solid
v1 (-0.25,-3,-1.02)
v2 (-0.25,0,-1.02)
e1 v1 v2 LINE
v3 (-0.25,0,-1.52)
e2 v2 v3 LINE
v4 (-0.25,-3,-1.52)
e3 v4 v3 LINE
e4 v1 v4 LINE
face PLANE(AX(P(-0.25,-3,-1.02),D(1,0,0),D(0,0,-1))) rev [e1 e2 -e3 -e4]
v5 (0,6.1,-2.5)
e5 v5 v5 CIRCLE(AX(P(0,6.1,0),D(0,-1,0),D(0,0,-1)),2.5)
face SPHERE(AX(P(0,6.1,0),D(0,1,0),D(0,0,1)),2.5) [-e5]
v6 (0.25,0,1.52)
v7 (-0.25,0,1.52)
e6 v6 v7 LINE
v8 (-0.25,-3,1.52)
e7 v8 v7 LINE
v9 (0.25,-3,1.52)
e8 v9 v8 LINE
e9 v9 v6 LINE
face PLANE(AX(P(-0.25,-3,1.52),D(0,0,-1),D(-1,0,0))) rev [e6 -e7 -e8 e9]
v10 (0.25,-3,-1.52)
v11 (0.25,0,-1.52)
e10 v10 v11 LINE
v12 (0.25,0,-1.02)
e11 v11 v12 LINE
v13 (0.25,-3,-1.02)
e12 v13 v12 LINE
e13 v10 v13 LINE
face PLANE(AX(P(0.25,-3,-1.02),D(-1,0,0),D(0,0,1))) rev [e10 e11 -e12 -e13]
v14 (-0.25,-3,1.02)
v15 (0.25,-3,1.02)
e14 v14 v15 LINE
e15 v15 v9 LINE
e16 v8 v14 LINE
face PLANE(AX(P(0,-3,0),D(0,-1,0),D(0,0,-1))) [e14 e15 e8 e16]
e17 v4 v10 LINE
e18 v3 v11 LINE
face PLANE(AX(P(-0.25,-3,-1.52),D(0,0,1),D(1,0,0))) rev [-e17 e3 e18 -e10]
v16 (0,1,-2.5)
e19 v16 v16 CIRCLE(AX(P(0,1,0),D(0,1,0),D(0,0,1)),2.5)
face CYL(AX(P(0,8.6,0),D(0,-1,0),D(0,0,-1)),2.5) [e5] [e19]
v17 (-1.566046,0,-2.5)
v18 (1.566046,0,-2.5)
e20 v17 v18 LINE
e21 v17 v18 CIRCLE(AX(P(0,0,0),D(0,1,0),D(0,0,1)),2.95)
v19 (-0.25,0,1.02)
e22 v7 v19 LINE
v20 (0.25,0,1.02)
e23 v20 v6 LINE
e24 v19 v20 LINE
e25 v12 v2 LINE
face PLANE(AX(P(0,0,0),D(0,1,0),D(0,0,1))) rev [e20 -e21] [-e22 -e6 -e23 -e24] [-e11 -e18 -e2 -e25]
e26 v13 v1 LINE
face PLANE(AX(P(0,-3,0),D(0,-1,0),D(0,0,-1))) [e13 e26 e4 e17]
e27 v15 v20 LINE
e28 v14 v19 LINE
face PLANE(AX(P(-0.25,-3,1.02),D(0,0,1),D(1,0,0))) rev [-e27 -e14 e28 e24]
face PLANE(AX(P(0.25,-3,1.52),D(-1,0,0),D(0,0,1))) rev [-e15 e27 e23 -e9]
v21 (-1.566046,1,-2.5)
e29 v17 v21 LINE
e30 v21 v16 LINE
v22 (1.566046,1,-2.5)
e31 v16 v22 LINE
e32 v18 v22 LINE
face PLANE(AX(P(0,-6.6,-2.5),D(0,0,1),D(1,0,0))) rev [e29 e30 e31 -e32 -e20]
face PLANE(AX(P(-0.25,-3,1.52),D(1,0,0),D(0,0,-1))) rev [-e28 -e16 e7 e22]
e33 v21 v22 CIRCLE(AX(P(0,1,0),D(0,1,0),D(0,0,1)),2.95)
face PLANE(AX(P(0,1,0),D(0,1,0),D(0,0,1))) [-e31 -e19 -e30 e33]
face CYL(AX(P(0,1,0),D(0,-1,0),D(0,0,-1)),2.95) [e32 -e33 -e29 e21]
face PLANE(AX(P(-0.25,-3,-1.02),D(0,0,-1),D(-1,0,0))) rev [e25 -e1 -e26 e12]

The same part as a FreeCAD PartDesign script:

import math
import FreeCAD as App
import Part
import Sketcher
Q = App.Units.Quantity


def edges_at(feature, points):
    """Names of the edges that pass closest to the given points."""
    edges = feature.Shape.Edges
    near = lambda p: min(range(len(edges)), key=lambda i: edges[i].distToShape(Part.Vertex(*p))[0])
    return sorted({f"Edge{near(p) + 1}" for p in points})


def add_polygon(sketch, points):
    """Adds a closed chain of lines whose ends are joined by coincident constraints."""
    first, n = sketch.GeometryCount, len(points)
    for a, b in zip(points, points[1:] + points[:1]):
        sketch.addGeometry(Part.LineSegment(App.Vector(*a, 0), App.Vector(*b, 0)), False)
    for i in range(n):
        sketch.addConstraint(Sketcher.Constraint("Coincident", first + i, 2, first + (i + 1) % n, 1))

doc = App.newDocument("Part")
params = doc.addObject("Spreadsheet::Sheet", "Params")
for row, (alias, value) in enumerate([
    ("sketch1_diameter", "5.9 mm"),
    ("pad1_length", "1 mm"),
    ("sketch2_diameter", "5 mm"),
    ("pad2_length", "7.6 mm"),
    ("sketch3_radius", "2.95 mm"),
    ("pocket1_length", "7.6 mm"),
    ("fillet_radius", "2.5 mm"),
    ("sketch4_width", "0.5 mm"),
    ("pad3_length", "3 mm"),
], start=1):
    params.set(f"A{row}", alias)
    params.set(f"B{row}", "=" + value)
    params.setAlias(f"B{row}", alias)

body = doc.addObject("PartDesign::Body", "Body")

# Sketch on XZ plane
sketch1 = doc.addObject("Sketcher::SketchObject", "Sketch")
body.addObject(sketch1)
sketch1.AttachmentSupport = (doc.XZ_Plane, [""])
sketch1.MapMode = "FlatFace"
sketch1.addGeometry(Part.Circle(App.Vector(0, 0, 0), App.Vector(0, 0, 1), 2.95), False)
sketch1.addConstraint([
    Sketcher.Constraint("Coincident", 0, 3, -1, 1),
    Sketcher.Constraint("Diameter", 0, Q("5.9 mm")),
])
sketch1.setExpression("Constraints[1]", "Params.sketch1_diameter")
pad1 = doc.addObject("PartDesign::Pad", "Pad")
body.addObject(pad1)
pad1.Profile = sketch1
pad1.setExpression("Length", "Params.pad1_length")
pad1.Reversed = True

# Sketch on XZ plane
sketch2 = doc.addObject("Sketcher::SketchObject", "Sketch001")
body.addObject(sketch2)
sketch2.AttachmentSupport = (doc.XZ_Plane, [""])
sketch2.MapMode = "FlatFace"
sketch2.AttachmentOffset = App.Placement(App.Vector(0, 0, -1), App.Rotation())
sketch2.addGeometry(Part.Circle(App.Vector(0, 0, 0), App.Vector(0, 0, 1), 2.5), False)
sketch2.addConstraint([
    Sketcher.Constraint("Coincident", 0, 3, -1, 1),
    Sketcher.Constraint("Diameter", 0, Q("5 mm")),
])
sketch2.setExpression("Constraints[1]", "Params.sketch2_diameter")
pad2 = doc.addObject("PartDesign::Pad", "Pad001")
body.addObject(pad2)
pad2.Profile = sketch2
pad2.setExpression("Length", "Params.pad2_length")
pad2.Reversed = True

# Sketch on XZ plane
sketch3 = doc.addObject("Sketcher::SketchObject", "Sketch002")
body.addObject(sketch3)
sketch3.AttachmentSupport = (doc.XZ_Plane, [""])
sketch3.MapMode = "FlatFace"
sketch3.AttachmentOffset = App.Placement(App.Vector(0, 0, 6.6), App.Rotation())
sketch3.addGeometry([
    Part.LineSegment(App.Vector(-1.566046, -2.5, 0), App.Vector(1.566046, -2.5, 0)),
    Part.ArcOfCircle(Part.Circle(App.Vector(0, 0, 0), App.Vector(0, 0, 1), 2.95), math.radians(-122.063786), math.radians(-57.936214)),
], False)
sketch3.addConstraint([
    Sketcher.Constraint("Coincident", 0, 1, 1, 1),
    Sketcher.Constraint("Coincident", 1, 2, 0, 2),
    Sketcher.Constraint("Horizontal", 0),
    Sketcher.Constraint("Coincident", 1, 3, -1, 1),
    Sketcher.Constraint("Radius", 1, Q("2.95 mm")),
    Sketcher.Constraint("DistanceY", 0, 1, -1, 1, Q("2.5 mm")),
])
sketch3.setExpression("Constraints[4]", "Params.sketch3_radius")
pocket1 = doc.addObject("PartDesign::Pocket", "Pocket")
body.addObject(pocket1)
pocket1.Profile = sketch3
pocket1.setExpression("Length", "Params.pocket1_length")
doc.recompute()

fillet = doc.addObject("PartDesign::Fillet", "Fillet")
body.addObject(fillet)
fillet.Base = (pocket1, edges_at(pocket1, [(0, 8.6, 2.5)]))
fillet.setExpression("Radius", "Params.fillet_radius")

# Sketch on XZ plane
sketch4 = doc.addObject("Sketcher::SketchObject", "Sketch003")
body.addObject(sketch4)
sketch4.AttachmentSupport = (doc.XZ_Plane, [""])
sketch4.MapMode = "FlatFace"
add_polygon(sketch4, [(-0.25, 1.52), (-0.25, 1.02), (0.25, 1.02), (0.25, 1.52)])  # lines 0-3
add_polygon(sketch4, [(-0.25, -1.02), (-0.25, -1.52), (0.25, -1.52), (0.25, -1.02)])  # lines 4-7
sketch4.addConstraint([
    Sketcher.Constraint("Vertical", 0),
    Sketcher.Constraint("Horizontal", 1),
    Sketcher.Constraint("Vertical", 2),
    Sketcher.Constraint("Horizontal", 3),
    Sketcher.Constraint("Vertical", 4),
    Sketcher.Constraint("Horizontal", 5),
    Sketcher.Constraint("Vertical", 6),
    Sketcher.Constraint("Horizontal", 7),
    Sketcher.Constraint("Symmetric", 2, 2, 4, 2, -1, 1),
    Sketcher.Constraint("Symmetric", 0, 2, 6, 2, -1, 1),
    Sketcher.Constraint("Vertical", 3, 2, 4, 2),
    Sketcher.Constraint("Equal", 7, 0),
    Sketcher.Constraint("DistanceX", 1, 1, 1, 2, Q("0.5 mm")),
    Sketcher.Constraint("DistanceY", -1, 1, 0, 2, Q("1.02 mm")),
])
sketch4.setExpression("Constraints[20]", "Params.sketch4_width")
pad3 = doc.addObject("PartDesign::Pad", "Pad002")
body.addObject(pad3)
pad3.Profile = sketch4
pad3.setExpression("Length", "Params.pad3_length")

doc.recompute()
